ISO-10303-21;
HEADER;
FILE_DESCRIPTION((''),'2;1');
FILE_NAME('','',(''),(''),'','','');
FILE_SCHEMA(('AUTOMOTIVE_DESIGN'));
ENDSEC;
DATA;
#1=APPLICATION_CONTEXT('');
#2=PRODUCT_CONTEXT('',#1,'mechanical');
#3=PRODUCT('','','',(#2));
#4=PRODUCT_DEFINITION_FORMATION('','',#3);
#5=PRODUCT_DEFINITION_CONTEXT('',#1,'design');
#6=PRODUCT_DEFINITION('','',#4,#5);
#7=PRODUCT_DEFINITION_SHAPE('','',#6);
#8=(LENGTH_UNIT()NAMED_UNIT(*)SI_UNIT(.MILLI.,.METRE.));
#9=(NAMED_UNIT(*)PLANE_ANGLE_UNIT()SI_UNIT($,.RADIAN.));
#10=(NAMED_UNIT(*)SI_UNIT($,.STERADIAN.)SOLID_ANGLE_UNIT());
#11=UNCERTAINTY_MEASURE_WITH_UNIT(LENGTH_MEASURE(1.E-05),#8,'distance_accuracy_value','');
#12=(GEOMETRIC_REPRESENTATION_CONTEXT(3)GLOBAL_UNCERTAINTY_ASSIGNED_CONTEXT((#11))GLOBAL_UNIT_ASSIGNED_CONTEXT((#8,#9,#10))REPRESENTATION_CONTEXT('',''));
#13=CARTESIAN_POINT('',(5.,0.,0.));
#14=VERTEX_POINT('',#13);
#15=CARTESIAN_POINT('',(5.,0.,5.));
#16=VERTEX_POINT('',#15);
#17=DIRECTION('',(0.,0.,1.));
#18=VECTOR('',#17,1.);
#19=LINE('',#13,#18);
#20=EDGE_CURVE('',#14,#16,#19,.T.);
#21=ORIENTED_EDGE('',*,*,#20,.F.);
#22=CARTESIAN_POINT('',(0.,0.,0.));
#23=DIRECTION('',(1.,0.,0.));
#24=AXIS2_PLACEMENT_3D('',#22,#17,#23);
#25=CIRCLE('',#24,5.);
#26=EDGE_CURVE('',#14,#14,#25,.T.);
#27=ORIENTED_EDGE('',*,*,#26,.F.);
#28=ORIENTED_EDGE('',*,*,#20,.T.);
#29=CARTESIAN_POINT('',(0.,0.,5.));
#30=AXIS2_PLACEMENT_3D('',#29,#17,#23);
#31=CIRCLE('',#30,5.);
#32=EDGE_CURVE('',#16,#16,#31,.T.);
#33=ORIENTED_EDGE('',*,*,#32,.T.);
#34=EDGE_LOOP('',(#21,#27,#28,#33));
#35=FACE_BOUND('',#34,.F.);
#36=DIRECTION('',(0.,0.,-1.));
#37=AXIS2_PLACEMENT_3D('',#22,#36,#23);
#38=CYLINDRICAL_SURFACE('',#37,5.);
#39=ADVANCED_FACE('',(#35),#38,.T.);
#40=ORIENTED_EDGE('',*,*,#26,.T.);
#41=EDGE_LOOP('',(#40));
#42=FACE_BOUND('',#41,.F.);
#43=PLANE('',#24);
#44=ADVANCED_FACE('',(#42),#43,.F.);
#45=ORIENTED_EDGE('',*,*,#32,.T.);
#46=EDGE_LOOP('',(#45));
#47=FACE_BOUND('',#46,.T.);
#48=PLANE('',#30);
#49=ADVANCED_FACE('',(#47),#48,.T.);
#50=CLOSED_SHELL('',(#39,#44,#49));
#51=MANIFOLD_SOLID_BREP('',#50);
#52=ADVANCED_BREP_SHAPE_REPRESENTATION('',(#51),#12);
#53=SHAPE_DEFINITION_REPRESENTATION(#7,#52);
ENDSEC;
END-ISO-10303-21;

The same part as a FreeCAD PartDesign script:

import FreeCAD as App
import Part
import Sketcher

V = App.Vector

doc = App.newDocument("Part")
body = doc.addObject("PartDesign::Body", "Body")

# Sketch on XY plane
sketch1 = body.newObject("Sketcher::SketchObject", "Sketch")
sketch1.AttachmentSupport = (doc.getObject("XY_Plane"), [""])
sketch1.MapMode = "FlatFace"
sketch1.addGeometry(Part.Circle(V(0, 0, 0), V(0, 0, 1), 5), False)
sketch1.addConstraint(Sketcher.Constraint("Coincident", 0, 3, -1, 1))
sketch1.addConstraint(Sketcher.Constraint("Diameter", 0, 10.0))
pad1 = body.newObject("PartDesign::Pad", "Pad")
pad1.Profile = sketch1
pad1.Length = 5

doc.recompute()
